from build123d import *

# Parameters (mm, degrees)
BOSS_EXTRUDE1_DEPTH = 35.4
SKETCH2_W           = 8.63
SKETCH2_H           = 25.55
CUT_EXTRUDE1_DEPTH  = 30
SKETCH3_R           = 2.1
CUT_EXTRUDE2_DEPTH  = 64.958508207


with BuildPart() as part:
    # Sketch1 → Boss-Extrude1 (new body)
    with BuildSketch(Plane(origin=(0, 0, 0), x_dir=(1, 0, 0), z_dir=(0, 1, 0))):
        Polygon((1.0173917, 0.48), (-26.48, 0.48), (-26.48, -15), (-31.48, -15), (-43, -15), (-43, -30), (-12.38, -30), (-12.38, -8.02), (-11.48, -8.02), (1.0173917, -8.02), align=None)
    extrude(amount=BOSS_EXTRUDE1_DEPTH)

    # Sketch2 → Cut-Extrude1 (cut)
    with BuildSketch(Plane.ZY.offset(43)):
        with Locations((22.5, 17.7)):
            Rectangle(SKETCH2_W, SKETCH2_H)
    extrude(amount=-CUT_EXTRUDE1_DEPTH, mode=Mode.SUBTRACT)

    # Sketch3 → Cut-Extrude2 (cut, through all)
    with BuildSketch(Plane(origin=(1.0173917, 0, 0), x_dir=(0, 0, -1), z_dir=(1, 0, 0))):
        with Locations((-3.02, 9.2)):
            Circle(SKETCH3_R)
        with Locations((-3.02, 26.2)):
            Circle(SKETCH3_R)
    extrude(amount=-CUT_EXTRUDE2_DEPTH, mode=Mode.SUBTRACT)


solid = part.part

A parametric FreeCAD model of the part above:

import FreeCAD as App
import Part
import Sketcher


def add_polygon(sketch, points):
    """Adds a closed chain of lines whose ends are joined by coincident constraints."""
    first, n = sketch.GeometryCount, len(points)
    for a, b in zip(points, points[1:] + points[:1]):
        sketch.addGeometry(Part.LineSegment(App.Vector(*a, 0), App.Vector(*b, 0)), False)
    for i in range(n):
        sketch.addConstraint(Sketcher.Constraint("Coincident", first + i, 2, first + (i + 1) % n, 1))

doc = App.newDocument("Part")
body = doc.addObject("PartDesign::Body", "Body")

# Sketch on XZ plane
sketch1 = doc.addObject("Sketcher::SketchObject", "Sketch")
body.addObject(sketch1)
sketch1.AttachmentSupport = (doc.XZ_Plane, [""])
sketch1.MapMode = "FlatFace"
add_polygon(sketch1, [(1, 0), (-26, 0), (-26, 15), (-43, 15), (-43, 30), (-12, 30), (-12, 8), (1, 8)])  # lines 0-7
sketch1.addConstraint(Sketcher.Constraint("Horizontal", 0))
sketch1.addConstraint(Sketcher.Constraint("Vertical", 1))
sketch1.addConstraint(Sketcher.Constraint("Horizontal", 2))
sketch1.addConstraint(Sketcher.Constraint("Vertical", 3))
sketch1.addConstraint(Sketcher.Constraint("Horizontal", 4))
sketch1.addConstraint(Sketcher.Constraint("Vertical", 5))
sketch1.addConstraint(Sketcher.Constraint("Horizontal", 6))
sketch1.addConstraint(Sketcher.Constraint("Vertical", 7))
sketch1.addConstraint(Sketcher.Constraint("DistanceY", 3, 1, 3, 2, 15.0))
sketch1.addConstraint(Sketcher.Constraint("DistanceY", 7, 2, 7, 1, 8.5))
sketch1.addConstraint(Sketcher.Constraint("DistanceY", -1, 1, 1, 2, 15.0))
sketch1.addConstraint(Sketcher.Constraint("DistanceX", 2, 2, -1, 1, 43.0))
sketch1.addConstraint(Sketcher.Constraint("DistanceX", 2, 2, 2, 1, 16.52))
sketch1.addConstraint(Sketcher.Constraint("DistanceX", 4, 1, 4, 2, 30.62))
sketch1.addConstraint(Sketcher.Constraint("DistanceY", 1, 1, 1, 2, 15.48))
sketch1.addConstraint(Sketcher.Constraint("DistanceX", 0, 2, 0, 1, 27.497392))
pad1 = doc.addObject("PartDesign::Pad", "Pad")
body.addObject(pad1)
pad1.Profile = sketch1
pad1.Length = 35.4
pad1.Reversed = True

# Sketch on YZ plane
sketch2 = doc.addObject("Sketcher::SketchObject", "Sketch001")
body.addObject(sketch2)
sketch2.AttachmentSupport = (doc.YZ_Plane, [""])
sketch2.MapMode = "FlatFace"
sketch2.AttachmentOffset = App.Placement(App.Vector(0, 0, -43), App.Rotation())
add_polygon(sketch2, [(30, 18), (5, 18), (5, 27), (30, 27)])  # lines 0-3
sketch2.addConstraint(Sketcher.Constraint("Horizontal", 0))
sketch2.addConstraint(Sketcher.Constraint("Vertical", 1))
sketch2.addConstraint(Sketcher.Constraint("Horizontal", 2))
sketch2.addConstraint(Sketcher.Constraint("Vertical", 3))
sketch2.addConstraint(Sketcher.Constraint("DistanceX", 0, 2, 0, 1, 25.55))
sketch2.addConstraint(Sketcher.Constraint("DistanceY", 1, 1, 1, 2, 8.63))
sketch2.addConstraint(Sketcher.Constraint("DistanceX", -1, 1, 0, 2, 4.925))
sketch2.addConstraint(Sketcher.Constraint("DistanceY", -1, 1, 0, 2, 18.185))
pocket1 = doc.addObject("PartDesign::Pocket", "Pocket")
body.addObject(pocket1)
pocket1.Profile = sketch2
pocket1.Length = 30
pocket1.Reversed = True

# Sketch on YZ plane
sketch3 = doc.addObject("Sketcher::SketchObject", "Sketch002")
body.addObject(sketch3)
sketch3.AttachmentSupport = (doc.YZ_Plane, [""])
sketch3.MapMode = "FlatFace"
sketch3.AttachmentOffset = App.Placement(App.Vector(0, 0, 1.017392), App.Rotation())
sketch3.addGeometry(Part.Circle(App.Vector(9.2, 3, 0), App.Vector(0, 0, 1), 2.1), False)
sketch3.addGeometry(Part.Circle(App.Vector(26.2, 3, 0), App.Vector(0, 0, 1), 2.1), False)
sketch3.addConstraint(Sketcher.Constraint("Equal", 0, 1))
sketch3.addConstraint(Sketcher.Constraint("Horizontal", 0, 3, 1, 3))
sketch3.addConstraint(Sketcher.Constraint("Diameter", 0, 4.2))
sketch3.addConstraint(Sketcher.Constraint("DistanceX", 0, 3, 1, 3, 17.0))
sketch3.addConstraint(Sketcher.Constraint("DistanceX", -1, 1, 0, 3, 9.2))
sketch3.addConstraint(Sketcher.Constraint("DistanceY", -1, 1, 0, 3, 3.02))
pocket2 = doc.addObject("PartDesign::Pocket", "Pocket001")
body.addObject(pocket2)
pocket2.Profile = sketch3
pocket2.Type = "ThroughAll"

doc.recompute()
